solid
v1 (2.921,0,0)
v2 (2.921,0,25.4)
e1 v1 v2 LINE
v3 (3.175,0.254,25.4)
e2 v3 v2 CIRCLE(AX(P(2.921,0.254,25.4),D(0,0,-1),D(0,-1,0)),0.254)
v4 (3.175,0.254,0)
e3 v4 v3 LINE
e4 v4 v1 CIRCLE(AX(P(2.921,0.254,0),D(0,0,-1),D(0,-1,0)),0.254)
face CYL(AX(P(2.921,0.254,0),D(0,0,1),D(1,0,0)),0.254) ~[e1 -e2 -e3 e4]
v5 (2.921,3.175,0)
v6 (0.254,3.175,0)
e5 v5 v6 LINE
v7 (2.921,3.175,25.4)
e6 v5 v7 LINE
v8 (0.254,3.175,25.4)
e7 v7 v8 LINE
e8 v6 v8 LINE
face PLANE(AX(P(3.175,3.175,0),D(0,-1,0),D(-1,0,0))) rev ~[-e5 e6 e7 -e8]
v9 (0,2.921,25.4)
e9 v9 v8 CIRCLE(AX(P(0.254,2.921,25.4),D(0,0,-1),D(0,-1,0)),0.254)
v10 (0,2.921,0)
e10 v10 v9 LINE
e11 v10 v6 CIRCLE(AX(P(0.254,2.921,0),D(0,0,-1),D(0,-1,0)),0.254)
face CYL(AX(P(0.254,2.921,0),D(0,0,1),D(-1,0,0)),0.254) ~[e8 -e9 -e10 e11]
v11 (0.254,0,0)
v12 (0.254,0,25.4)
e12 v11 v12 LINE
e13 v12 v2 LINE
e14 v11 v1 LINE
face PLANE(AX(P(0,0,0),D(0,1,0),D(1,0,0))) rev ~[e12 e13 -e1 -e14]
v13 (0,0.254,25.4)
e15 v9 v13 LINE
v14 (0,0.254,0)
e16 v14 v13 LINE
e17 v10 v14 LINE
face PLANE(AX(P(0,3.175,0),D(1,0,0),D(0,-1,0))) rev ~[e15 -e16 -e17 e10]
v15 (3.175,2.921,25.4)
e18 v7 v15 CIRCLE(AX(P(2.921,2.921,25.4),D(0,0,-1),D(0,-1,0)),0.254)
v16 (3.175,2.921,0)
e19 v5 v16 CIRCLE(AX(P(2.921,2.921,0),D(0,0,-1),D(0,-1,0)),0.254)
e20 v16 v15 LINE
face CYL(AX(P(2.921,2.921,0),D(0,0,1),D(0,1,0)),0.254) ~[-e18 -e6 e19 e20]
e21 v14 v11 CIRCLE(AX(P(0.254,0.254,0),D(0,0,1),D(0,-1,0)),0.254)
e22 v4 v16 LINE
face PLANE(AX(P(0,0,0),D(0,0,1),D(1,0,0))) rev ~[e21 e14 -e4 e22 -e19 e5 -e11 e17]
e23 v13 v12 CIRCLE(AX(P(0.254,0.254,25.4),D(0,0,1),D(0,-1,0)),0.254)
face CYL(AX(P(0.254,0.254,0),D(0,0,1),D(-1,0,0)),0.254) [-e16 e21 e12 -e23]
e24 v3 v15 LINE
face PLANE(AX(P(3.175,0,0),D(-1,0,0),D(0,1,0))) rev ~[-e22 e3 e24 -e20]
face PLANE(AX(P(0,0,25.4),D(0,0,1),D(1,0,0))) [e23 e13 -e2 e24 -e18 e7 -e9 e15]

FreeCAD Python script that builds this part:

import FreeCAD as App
import Part
import Sketcher
from FreeCAD import Vector
Q = App.Units.Quantity


def edges_at(feature, points):
    """Names of the edges that pass closest to the given points."""
    edges = feature.Shape.Edges
    near = lambda p: min(range(len(edges)), key=lambda i: edges[i].distToShape(Part.Vertex(*p))[0])
    return sorted({f"Edge{near(p) + 1}" for p in points})


def add_polygon(sketch, points):
    """Adds a closed chain of lines whose ends are joined by coincident constraints."""
    first, n = sketch.GeometryCount, len(points)
    for a, b in zip(points, points[1:] + points[:1]):
        sketch.addGeometry(Part.LineSegment(App.Vector(*a, 0), App.Vector(*b, 0)), False)
    for i in range(n):
        sketch.addConstraint(Sketcher.Constraint("Coincident", first + i, 2, first + (i + 1) % n, 1))

doc = App.newDocument("Part")
body = doc.addObject("PartDesign::Body", "Body")

# Sketch on XY plane
sketch1 = body.newObject("Sketcher::SketchObject", "Sketch")
sketch1.AttachmentSupport = (doc.getObject("XY_Plane"), [""])
sketch1.MapMode = "FlatFace"
add_polygon(sketch1, [(0, 3.2), (0, 0), (3.2, 0), (3.2, 3.2)])  # lines 0-3
sketch1.addConstraint([
    Sketcher.Constraint("Vertical", 0),
    Sketcher.Constraint("Horizontal", 1),
    Sketcher.Constraint("Vertical", 2),
    Sketcher.Constraint("Horizontal", 3),
    Sketcher.Constraint("Coincident", 0, 2, -1, 1),
    Sketcher.Constraint("Equal", 3, 0),
    Sketcher.Constraint("DistanceX", 1, 1, 1, 2, Q("0.125 in")),
])
pad1 = body.newObject("PartDesign::Pad", "Pad")
pad1.Profile = sketch1
pad1.Length = Q("1 in")
doc.recompute()

fillet = body.newObject("PartDesign::Fillet", "Fillet")
fillet.Base = (pad1, edges_at(pad1, [
    (3.175, 3.175, 12.7),
    (0, 3.175, 12.7),
    (3.175, 0, 12.7),
    (0, 0, 12.7),
]))
fillet.Radius = Q("0.01 in")

doc.recompute()
